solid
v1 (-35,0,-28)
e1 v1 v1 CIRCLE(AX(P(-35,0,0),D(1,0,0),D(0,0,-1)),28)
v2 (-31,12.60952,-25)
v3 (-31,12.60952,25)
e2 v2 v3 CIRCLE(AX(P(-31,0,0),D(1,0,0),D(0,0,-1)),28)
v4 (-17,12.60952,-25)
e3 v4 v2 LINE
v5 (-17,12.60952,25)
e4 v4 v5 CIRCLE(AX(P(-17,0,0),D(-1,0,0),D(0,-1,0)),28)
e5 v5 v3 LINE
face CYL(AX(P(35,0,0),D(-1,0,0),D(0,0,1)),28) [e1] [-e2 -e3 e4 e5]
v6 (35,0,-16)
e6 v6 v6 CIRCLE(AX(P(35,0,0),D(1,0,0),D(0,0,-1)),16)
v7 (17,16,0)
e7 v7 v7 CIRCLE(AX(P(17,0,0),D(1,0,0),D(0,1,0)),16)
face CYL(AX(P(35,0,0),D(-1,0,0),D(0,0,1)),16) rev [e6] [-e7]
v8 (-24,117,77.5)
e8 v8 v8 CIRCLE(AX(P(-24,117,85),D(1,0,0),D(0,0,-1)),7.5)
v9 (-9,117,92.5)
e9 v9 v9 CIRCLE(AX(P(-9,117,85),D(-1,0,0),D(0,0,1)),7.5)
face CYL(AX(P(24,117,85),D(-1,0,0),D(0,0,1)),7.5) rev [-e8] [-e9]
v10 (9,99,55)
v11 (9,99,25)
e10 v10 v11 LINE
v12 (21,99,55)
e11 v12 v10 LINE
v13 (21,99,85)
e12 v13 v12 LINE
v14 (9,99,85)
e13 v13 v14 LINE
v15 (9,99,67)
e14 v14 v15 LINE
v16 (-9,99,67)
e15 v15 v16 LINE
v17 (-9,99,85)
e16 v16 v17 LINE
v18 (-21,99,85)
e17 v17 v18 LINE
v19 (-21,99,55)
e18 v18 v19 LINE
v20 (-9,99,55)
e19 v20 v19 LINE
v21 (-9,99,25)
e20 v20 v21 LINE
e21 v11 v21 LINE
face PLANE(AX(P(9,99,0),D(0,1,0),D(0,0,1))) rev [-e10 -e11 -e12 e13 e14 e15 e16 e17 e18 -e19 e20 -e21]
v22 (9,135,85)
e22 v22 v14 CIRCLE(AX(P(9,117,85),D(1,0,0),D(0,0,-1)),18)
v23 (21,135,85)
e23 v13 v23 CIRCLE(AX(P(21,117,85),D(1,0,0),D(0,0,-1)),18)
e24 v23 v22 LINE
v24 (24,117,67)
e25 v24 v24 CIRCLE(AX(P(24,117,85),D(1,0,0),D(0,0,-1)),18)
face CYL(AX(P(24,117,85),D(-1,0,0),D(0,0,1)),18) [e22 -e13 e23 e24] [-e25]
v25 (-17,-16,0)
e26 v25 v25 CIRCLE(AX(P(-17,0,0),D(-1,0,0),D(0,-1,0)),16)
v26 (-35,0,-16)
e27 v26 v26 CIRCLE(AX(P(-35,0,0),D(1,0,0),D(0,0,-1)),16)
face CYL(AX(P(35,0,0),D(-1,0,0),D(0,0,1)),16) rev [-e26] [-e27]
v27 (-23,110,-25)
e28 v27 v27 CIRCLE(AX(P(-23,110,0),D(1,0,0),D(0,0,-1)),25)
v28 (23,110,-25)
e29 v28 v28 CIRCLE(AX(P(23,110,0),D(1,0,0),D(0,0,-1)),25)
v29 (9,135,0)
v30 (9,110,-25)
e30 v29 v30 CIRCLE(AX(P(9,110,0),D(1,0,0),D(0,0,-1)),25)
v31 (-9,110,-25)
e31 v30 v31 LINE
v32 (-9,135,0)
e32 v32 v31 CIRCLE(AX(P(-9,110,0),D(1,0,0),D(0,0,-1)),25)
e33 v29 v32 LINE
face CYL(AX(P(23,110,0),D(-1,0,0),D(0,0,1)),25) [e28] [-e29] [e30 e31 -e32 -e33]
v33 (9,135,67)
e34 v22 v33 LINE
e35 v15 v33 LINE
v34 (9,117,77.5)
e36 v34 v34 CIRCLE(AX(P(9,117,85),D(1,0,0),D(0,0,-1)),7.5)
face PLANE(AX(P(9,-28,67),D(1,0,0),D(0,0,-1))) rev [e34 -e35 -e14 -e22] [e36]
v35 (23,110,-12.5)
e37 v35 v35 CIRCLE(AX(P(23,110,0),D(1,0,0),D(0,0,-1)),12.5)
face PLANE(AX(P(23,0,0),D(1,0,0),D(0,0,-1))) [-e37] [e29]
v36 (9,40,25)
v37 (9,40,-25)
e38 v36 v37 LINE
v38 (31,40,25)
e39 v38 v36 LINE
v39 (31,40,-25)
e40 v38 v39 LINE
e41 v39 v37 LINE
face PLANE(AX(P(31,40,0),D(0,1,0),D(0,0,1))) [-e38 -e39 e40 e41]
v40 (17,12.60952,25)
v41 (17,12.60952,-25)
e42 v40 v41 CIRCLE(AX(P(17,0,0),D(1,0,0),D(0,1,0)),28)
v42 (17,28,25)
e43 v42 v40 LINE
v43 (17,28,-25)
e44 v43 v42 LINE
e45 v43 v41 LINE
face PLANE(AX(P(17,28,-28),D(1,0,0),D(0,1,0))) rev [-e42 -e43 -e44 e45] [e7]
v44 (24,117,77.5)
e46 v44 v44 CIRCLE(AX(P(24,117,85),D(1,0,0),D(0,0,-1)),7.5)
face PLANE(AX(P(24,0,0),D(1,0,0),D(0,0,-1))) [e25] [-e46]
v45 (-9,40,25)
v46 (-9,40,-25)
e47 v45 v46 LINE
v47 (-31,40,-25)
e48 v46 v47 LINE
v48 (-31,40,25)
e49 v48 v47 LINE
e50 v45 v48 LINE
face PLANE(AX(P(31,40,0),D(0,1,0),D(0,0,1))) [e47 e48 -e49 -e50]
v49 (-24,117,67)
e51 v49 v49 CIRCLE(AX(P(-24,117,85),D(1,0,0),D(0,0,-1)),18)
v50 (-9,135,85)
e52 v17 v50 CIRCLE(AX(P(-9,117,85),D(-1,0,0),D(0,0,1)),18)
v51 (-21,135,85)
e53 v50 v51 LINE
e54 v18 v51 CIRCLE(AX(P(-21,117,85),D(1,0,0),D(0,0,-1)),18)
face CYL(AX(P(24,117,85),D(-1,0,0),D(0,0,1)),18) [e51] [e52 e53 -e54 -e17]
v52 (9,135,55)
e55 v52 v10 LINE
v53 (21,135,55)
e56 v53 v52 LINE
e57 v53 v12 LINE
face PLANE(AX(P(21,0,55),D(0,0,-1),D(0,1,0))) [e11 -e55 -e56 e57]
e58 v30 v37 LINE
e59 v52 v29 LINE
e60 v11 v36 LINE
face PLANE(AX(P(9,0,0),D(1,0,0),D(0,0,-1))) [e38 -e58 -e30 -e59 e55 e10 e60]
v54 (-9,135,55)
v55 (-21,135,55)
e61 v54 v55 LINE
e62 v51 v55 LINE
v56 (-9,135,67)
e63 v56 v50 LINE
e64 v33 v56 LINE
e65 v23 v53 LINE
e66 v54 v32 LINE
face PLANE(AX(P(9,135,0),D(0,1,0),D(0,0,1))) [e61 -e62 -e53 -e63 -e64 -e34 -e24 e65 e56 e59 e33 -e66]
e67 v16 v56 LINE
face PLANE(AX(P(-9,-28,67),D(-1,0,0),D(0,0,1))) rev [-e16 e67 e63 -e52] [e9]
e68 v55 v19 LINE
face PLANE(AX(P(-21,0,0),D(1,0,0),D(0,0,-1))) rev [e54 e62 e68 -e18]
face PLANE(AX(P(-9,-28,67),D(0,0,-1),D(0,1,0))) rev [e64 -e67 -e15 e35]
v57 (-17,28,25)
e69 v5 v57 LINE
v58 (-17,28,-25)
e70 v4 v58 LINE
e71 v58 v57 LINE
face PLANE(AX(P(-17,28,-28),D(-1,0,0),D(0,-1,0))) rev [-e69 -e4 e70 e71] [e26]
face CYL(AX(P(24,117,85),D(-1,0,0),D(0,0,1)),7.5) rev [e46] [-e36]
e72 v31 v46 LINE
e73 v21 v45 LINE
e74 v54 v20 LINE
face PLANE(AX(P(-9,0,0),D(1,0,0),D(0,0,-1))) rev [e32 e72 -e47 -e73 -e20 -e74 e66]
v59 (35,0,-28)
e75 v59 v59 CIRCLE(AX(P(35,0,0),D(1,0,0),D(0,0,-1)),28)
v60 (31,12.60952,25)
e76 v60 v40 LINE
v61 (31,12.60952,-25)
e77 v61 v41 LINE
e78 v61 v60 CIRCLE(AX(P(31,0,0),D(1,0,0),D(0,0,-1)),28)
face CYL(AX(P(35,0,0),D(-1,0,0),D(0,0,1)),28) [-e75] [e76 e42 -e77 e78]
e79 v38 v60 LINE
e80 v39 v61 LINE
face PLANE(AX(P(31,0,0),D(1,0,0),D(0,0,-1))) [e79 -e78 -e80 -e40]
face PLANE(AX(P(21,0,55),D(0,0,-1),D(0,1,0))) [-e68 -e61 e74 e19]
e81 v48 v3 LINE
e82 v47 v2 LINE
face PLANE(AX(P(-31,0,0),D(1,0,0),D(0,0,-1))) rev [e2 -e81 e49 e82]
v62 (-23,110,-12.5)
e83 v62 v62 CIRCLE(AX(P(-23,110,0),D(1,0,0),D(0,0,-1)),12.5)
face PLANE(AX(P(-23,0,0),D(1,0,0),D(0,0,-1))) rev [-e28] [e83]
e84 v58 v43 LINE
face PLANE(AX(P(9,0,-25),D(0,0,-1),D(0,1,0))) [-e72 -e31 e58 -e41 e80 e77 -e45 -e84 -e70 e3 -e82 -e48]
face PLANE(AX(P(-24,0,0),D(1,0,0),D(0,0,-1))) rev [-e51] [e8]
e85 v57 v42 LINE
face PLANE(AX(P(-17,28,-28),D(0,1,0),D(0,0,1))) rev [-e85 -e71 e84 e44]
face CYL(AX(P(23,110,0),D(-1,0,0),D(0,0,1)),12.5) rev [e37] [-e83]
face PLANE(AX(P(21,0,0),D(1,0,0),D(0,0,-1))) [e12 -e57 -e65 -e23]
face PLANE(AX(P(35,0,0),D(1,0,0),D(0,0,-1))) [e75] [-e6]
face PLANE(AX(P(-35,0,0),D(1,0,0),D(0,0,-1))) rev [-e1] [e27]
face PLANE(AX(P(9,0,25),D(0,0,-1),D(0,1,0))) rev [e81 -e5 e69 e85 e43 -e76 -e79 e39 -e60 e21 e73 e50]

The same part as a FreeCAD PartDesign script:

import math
import FreeCAD as App
import Part
import Sketcher

V = App.Vector
Q = App.Units.Quantity

doc = App.newDocument("Part")
body = doc.addObject("PartDesign::Body", "Body")

# Sketch on YZ plane
sketch1 = body.newObject("Sketcher::SketchObject", "Sketch")
sketch1.AttachmentSupport = (doc.getObject("YZ_Plane"), [""])
sketch1.MapMode = "FlatFace"
sketch1.addGeometry(Part.ArcOfCircle(Part.Circle(V(110, 0, 0), V(0, 0, 1), 25), math.radians(0), math.radians(270)), False)
sketch1.addGeometry(Part.LineSegment(V(135, 0, 0), V(135, 55, 0)), False)
sketch1.addGeometry(Part.LineSegment(V(135, 55, 0), V(99, 55, 0)), False)
sketch1.addGeometry(Part.LineSegment(V(99, 55, 0), V(99, 25, 0)), False)
sketch1.addGeometry(Part.LineSegment(V(99, 25, 0), V(40, 25, 0)), False)
sketch1.addGeometry(Part.LineSegment(V(40, 25, 0), V(40, -25, 0)), False)
sketch1.addGeometry(Part.LineSegment(V(40, -25, 0), V(110, -25, 0)), False)
sketch1.addConstraint(Sketcher.Constraint("Tangent", 0, 1, 1, 1))
sketch1.addConstraint(Sketcher.Constraint("Coincident", 1, 2, 2, 1))
sketch1.addConstraint(Sketcher.Constraint("Coincident", 2, 2, 3, 1))
sketch1.addConstraint(Sketcher.Constraint("Coincident", 3, 2, 4, 1))
sketch1.addConstraint(Sketcher.Constraint("Coincident", 4, 2, 5, 1))
sketch1.addConstraint(Sketcher.Constraint("Coincident", 5, 2, 6, 1))
sketch1.addConstraint(Sketcher.Constraint("Tangent", 6, 2, 0, 2))
sketch1.addConstraint(Sketcher.Constraint("Vertical", 1))
sketch1.addConstraint(Sketcher.Constraint("Horizontal", 2))
sketch1.addConstraint(Sketcher.Constraint("Vertical", 3))
sketch1.addConstraint(Sketcher.Constraint("Horizontal", 4))
sketch1.addConstraint(Sketcher.Constraint("Vertical", 5))
sketch1.addConstraint(Sketcher.Constraint("Horizontal", 6))
sketch1.addConstraint(Sketcher.Constraint("PointOnObject", 0, 3, -1))
sketch1.addConstraint(Sketcher.Constraint("Radius", 0, Q("25 mm")))
sketch1.addConstraint(Sketcher.Constraint("DistanceX", 2, 2, 2, 1, Q("36 mm")))
sketch1.addConstraint(Sketcher.Constraint("DistanceX", 4, 2, 4, 1, Q("59 mm")))
sketch1.addConstraint(Sketcher.Constraint("DistanceY", 1, 1, 1, 2, Q("55 mm")))
sketch1.addConstraint(Sketcher.Constraint("DistanceY", 3, 2, 3, 1, Q("30 mm")))
sketch1.addConstraint(Sketcher.Constraint("DistanceX", -1, 1, 0, 3, Q("110 mm")))
pad1 = body.newObject("PartDesign::Pad", "Pad")
pad1.Profile = sketch1
pad1.Length = 18
pad1.Midplane = True

# Sketch on YZ plane
sketch2 = body.newObject("Sketcher::SketchObject", "Sketch001")
sketch2.AttachmentSupport = (doc.getObject("YZ_Plane"), [""])
sketch2.MapMode = "FlatFace"
sketch2.addGeometry(Part.Circle(V(110, 0, 0), V(0, 0, 1), 25), False)
sketch2.addGeometry(Part.Circle(V(110, 0, 0), V(0, 0, 1), 12), False)
sketch2.addConstraint(Sketcher.Constraint("Coincident", 1, 3, 0, 3))
sketch2.addConstraint(Sketcher.Constraint("PointOnObject", 0, 3, -1))
sketch2.addConstraint(Sketcher.Constraint("Diameter", 0, Q("50 mm")))
sketch2.addConstraint(Sketcher.Constraint("Diameter", 1, Q("25 mm")))
sketch2.addConstraint(Sketcher.Constraint("DistanceX", -1, 1, 0, 3, Q("110 mm")))
pad2 = body.newObject("PartDesign::Pad", "Pad001")
pad2.Profile = sketch2
pad2.Length = 46
pad2.Midplane = True
body2 = doc.addObject("PartDesign::Body", "Body001")

# Sketch on YZ plane
sketch3 = body2.newObject("Sketcher::SketchObject", "Sketch002")
sketch3.AttachmentSupport = (doc.getObject("YZ_Plane001"), [""])
sketch3.MapMode = "FlatFace"
sketch3.addGeometry(Part.Circle(V(0, 0, 0), V(0, 0, 1), 28), False)
sketch3.addGeometry(Part.Circle(V(0, 0, 0), V(0, 0, 1), 16), False)
sketch3.addConstraint(Sketcher.Constraint("Coincident", 0, 3, -1, 1))
sketch3.addConstraint(Sketcher.Constraint("Coincident", 1, 3, -1, 1))
sketch3.addConstraint(Sketcher.Constraint("Diameter", 0, Q("56 mm")))
sketch3.addConstraint(Sketcher.Constraint("Diameter", 1, Q("32 mm")))
pad3 = body2.newObject("PartDesign::Pad", "Pad002")
pad3.Profile = sketch3
pad3.Length = 70
pad3.Midplane = True
body.AllowCompound = True
doc.recompute()

boolean = body.newObject("PartDesign::Boolean", "Boolean")
boolean.Type = "Fuse"
boolean.addObjects([body2])

# Sketch on YZ plane
sketch4 = body.newObject("Sketcher::SketchObject", "Sketch003")
sketch4.AttachmentSupport = (doc.getObject("YZ_Plane"), [""])
sketch4.MapMode = "FlatFace"
sketch4.addGeometry(Part.LineSegment(V(40, -25, 0), V(40, 25, 0)), False)
sketch4.addGeometry(Part.LineSegment(V(40, 25, 0), V(13, 25, 0)), False)
sketch4.addGeometry(Part.ArcOfCircle(Part.Circle(V(0, 0, 0), V(0, 0, 1), 28), math.radians(-63), math.radians(63)), False)
sketch4.addGeometry(Part.LineSegment(V(13, -25, 0), V(40, -25, 0)), False)
sketch4.addConstraint(Sketcher.Constraint("Coincident", 0, 2, 1, 1))
sketch4.addConstraint(Sketcher.Constraint("Coincident", 1, 2, 2, 2))
sketch4.addConstraint(Sketcher.Constraint("Coincident", 2, 1, 3, 1))
sketch4.addConstraint(Sketcher.Constraint("Coincident", 3, 2, 0, 1))
sketch4.addConstraint(Sketcher.Constraint("Vertical", 0))
sketch4.addConstraint(Sketcher.Constraint("Horizontal", 1))
sketch4.addConstraint(Sketcher.Constraint("Horizontal", 3))
sketch4.addConstraint(Sketcher.Constraint("Coincident", 2, 3, -1, 1))
sketch4.addConstraint(Sketcher.Constraint("Vertical", 1, 2, 2, 1))
sketch4.addConstraint(Sketcher.Constraint("Radius", 2, Q("28 mm")))
sketch4.addConstraint(Sketcher.Constraint("DistanceY", 0, 1, 0, 2, Q("50 mm")))
sketch4.addConstraint(Sketcher.Constraint("DistanceX", -1, 1, 0, 2, Q("40 mm")))
pad4 = body.newObject("PartDesign::Pad", "Pad003")
pad4.Profile = sketch4
pad4.Length = 62
pad4.Midplane = True

# Sketch on YZ plane
sketch5 = body.newObject("Sketcher::SketchObject", "Sketch004")
sketch5.AttachmentSupport = (doc.getObject("YZ_Plane"), [""])
sketch5.MapMode = "FlatFace"
sketch5.addGeometry(Part.LineSegment(V(99, 85, 0), V(99, 55, 0)), False)
sketch5.addGeometry(Part.LineSegment(V(99, 55, 0), V(135, 55, 0)), False)
sketch5.addGeometry(Part.LineSegment(V(135, 55, 0), V(135, 85, 0)), False)
sketch5.addGeometry(Part.ArcOfCircle(Part.Circle(V(117, 85, 0), V(0, 0, 1), 18), math.radians(-90), math.radians(0)), False)
sketch5.addGeometry(Part.ArcOfCircle(Part.Circle(V(117, 85, 0), V(0, 0, 1), 18), math.radians(-180), math.radians(-90)), False)
sketch5.addConstraint(Sketcher.Constraint("Coincident", 0, 2, 1, 1))
sketch5.addConstraint(Sketcher.Constraint("Coincident", 1, 2, 2, 1))
sketch5.addConstraint(Sketcher.Constraint("Tangent", 2, 2, 3, 2))
sketch5.addConstraint(Sketcher.Constraint("Tangent", 3, 1, 4, 2))
sketch5.addConstraint(Sketcher.Constraint("Tangent", 4, 1, 0, 1))
sketch5.addConstraint(Sketcher.Constraint("Vertical", 0))
sketch5.addConstraint(Sketcher.Constraint("Horizontal", 1))
sketch5.addConstraint(Sketcher.Constraint("Vertical", 2))
sketch5.addConstraint(Sketcher.Constraint("Equal", 3, 4))
sketch5.addConstraint(Sketcher.Constraint("Vertical", 4, 3, 3, 1))
sketch5.addConstraint(Sketcher.Constraint("Radius", 3, Q("18 mm")))
sketch5.addConstraint(Sketcher.Constraint("DistanceY", 0, 2, 0, 1, Q("30 mm")))
sketch5.addConstraint(Sketcher.Constraint("DistanceX", -1, 1, 3, 3, Q("117 mm")))
sketch5.addConstraint(Sketcher.Constraint("DistanceY", -1, 1, 3, 3, Q("85 mm")))
pad5 = body.newObject("PartDesign::Pad", "Pad004")
pad5.Profile = sketch5
pad5.Length = 42
pad5.Midplane = True

# Sketch on YZ plane
sketch6 = body.newObject("Sketcher::SketchObject", "Sketch005")
sketch6.AttachmentSupport = (doc.getObject("YZ_Plane"), [""])
sketch6.MapMode = "FlatFace"
sketch6.addGeometry(Part.Circle(V(117, 85, 0), V(0, 0, 1), 18), False)
sketch6.addGeometry(Part.Circle(V(117, 85, 0), V(0, 0, 1), 8), False)
sketch6.addConstraint(Sketcher.Constraint("Coincident", 1, 3, 0, 3))
sketch6.addConstraint(Sketcher.Constraint("Diameter", 0, Q("36 mm")))
sketch6.addConstraint(Sketcher.Constraint("Diameter", 1, Q("15 mm")))
sketch6.addConstraint(Sketcher.Constraint("DistanceX", -1, 1, 0, 3, Q("117 mm")))
sketch6.addConstraint(Sketcher.Constraint("DistanceY", -1, 1, 0, 3, Q("85 mm")))
pad6 = body.newObject("PartDesign::Pad", "Pad005")
pad6.Profile = sketch6
pad6.Length = 48
pad6.Midplane = True

# Sketch on XY plane
sketch7 = body.newObject("Sketcher::SketchObject", "Sketch006")
sketch7.AttachmentSupport = (doc.getObject("XY_Plane"), [""])
sketch7.MapMode = "FlatFace"
sketch7.addGeometry(Part.LineSegment(V(-17, 28, 0), V(-17, -28, 0)), False)
sketch7.addGeometry(Part.LineSegment(V(-17, -28, 0), V(17, -28, 0)), False)
sketch7.addGeometry(Part.LineSegment(V(17, -28, 0), V(17, 28, 0)), False)
sketch7.addGeometry(Part.LineSegment(V(17, 28, 0), V(-17, 28, 0)), False)
sketch7.addConstraint(Sketcher.Constraint("Coincident", 0, 2, 1, 1))
sketch7.addConstraint(Sketcher.Constraint("Coincident", 1, 2, 2, 1))
sketch7.addConstraint(Sketcher.Constraint("Coincident", 2, 2, 3, 1))
sketch7.addConstraint(Sketcher.Constraint("Coincident", 3, 2, 0, 1))
sketch7.addConstraint(Sketcher.Constraint("Vertical", 0))
sketch7.addConstraint(Sketcher.Constraint("Horizontal", 1))
sketch7.addConstraint(Sketcher.Constraint("Vertical", 2))
sketch7.addConstraint(Sketcher.Constraint("Horizontal", 3))
sketch7.addConstraint(Sketcher.Constraint("Symmetric", 0, 2, 2, 2, -1, 1))
sketch7.addConstraint(Sketcher.Constraint("DistanceX", 1, 1, 1, 2, Q("34 mm")))
sketch7.addConstraint(Sketcher.Constraint("DistanceY", 0, 2, 0, 1, Q("56 mm")))
pocket1 = body.newObject("PartDesign::Pocket", "Pocket")
pocket1.Profile = sketch7
pocket1.Type = "ThroughAll"
pocket1.Midplane = True

# Sketch on XZ plane
sketch8 = body.newObject("Sketcher::SketchObject", "Sketch007")
sketch8.AttachmentSupport = (doc.getObject("XZ_Plane"), [""])
sketch8.MapMode = "FlatFace"
sketch8.AttachmentOffset = App.Placement(V(0, 0, -135), App.Rotation())
sketch8.addGeometry(Part.LineSegment(V(-9, 67, 0), V(-9, 103, 0)), False)
sketch8.addGeometry(Part.LineSegment(V(-9, 103, 0), V(9, 103, 0)), False)
sketch8.addGeometry(Part.LineSegment(V(9, 103, 0), V(9, 67, 0)), False)
sketch8.addGeometry(Part.LineSegment(V(9, 67, 0), V(-9, 67, 0)), False)
sketch8.addConstraint(Sketcher.Constraint("Coincident", 0, 2, 1, 1))
sketch8.addConstraint(Sketcher.Constraint("Coincident", 1, 2, 2, 1))
sketch8.addConstraint(Sketcher.Constraint("Coincident", 2, 2, 3, 1))
sketch8.addConstraint(Sketcher.Constraint("Coincident", 3, 2, 0, 1))
sketch8.addConstraint(Sketcher.Constraint("Vertical", 0))
sketch8.addConstraint(Sketcher.Constraint("Horizontal", 1))
sketch8.addConstraint(Sketcher.Constraint("Vertical", 2))
sketch8.addConstraint(Sketcher.Constraint("Horizontal", 3))
sketch8.addConstraint(Sketcher.Constraint("DistanceX", 1, 1, 1, 2, Q("18 mm")))
sketch8.addConstraint(Sketcher.Constraint("DistanceY", 0, 1, 0, 2, Q("36 mm")))
sketch8.addConstraint(Sketcher.Constraint("DistanceX", 0, 2, -1, 1, Q("9 mm")))
sketch8.addConstraint(Sketcher.Constraint("DistanceY", -1, 1, 0, 2, Q("103 mm")))
pocket2 = body.newObject("PartDesign::Pocket", "Pocket001")
pocket2.Profile = sketch8
pocket2.Type = "ThroughAll"
pocket2.Midplane = True

doc.recompute()
